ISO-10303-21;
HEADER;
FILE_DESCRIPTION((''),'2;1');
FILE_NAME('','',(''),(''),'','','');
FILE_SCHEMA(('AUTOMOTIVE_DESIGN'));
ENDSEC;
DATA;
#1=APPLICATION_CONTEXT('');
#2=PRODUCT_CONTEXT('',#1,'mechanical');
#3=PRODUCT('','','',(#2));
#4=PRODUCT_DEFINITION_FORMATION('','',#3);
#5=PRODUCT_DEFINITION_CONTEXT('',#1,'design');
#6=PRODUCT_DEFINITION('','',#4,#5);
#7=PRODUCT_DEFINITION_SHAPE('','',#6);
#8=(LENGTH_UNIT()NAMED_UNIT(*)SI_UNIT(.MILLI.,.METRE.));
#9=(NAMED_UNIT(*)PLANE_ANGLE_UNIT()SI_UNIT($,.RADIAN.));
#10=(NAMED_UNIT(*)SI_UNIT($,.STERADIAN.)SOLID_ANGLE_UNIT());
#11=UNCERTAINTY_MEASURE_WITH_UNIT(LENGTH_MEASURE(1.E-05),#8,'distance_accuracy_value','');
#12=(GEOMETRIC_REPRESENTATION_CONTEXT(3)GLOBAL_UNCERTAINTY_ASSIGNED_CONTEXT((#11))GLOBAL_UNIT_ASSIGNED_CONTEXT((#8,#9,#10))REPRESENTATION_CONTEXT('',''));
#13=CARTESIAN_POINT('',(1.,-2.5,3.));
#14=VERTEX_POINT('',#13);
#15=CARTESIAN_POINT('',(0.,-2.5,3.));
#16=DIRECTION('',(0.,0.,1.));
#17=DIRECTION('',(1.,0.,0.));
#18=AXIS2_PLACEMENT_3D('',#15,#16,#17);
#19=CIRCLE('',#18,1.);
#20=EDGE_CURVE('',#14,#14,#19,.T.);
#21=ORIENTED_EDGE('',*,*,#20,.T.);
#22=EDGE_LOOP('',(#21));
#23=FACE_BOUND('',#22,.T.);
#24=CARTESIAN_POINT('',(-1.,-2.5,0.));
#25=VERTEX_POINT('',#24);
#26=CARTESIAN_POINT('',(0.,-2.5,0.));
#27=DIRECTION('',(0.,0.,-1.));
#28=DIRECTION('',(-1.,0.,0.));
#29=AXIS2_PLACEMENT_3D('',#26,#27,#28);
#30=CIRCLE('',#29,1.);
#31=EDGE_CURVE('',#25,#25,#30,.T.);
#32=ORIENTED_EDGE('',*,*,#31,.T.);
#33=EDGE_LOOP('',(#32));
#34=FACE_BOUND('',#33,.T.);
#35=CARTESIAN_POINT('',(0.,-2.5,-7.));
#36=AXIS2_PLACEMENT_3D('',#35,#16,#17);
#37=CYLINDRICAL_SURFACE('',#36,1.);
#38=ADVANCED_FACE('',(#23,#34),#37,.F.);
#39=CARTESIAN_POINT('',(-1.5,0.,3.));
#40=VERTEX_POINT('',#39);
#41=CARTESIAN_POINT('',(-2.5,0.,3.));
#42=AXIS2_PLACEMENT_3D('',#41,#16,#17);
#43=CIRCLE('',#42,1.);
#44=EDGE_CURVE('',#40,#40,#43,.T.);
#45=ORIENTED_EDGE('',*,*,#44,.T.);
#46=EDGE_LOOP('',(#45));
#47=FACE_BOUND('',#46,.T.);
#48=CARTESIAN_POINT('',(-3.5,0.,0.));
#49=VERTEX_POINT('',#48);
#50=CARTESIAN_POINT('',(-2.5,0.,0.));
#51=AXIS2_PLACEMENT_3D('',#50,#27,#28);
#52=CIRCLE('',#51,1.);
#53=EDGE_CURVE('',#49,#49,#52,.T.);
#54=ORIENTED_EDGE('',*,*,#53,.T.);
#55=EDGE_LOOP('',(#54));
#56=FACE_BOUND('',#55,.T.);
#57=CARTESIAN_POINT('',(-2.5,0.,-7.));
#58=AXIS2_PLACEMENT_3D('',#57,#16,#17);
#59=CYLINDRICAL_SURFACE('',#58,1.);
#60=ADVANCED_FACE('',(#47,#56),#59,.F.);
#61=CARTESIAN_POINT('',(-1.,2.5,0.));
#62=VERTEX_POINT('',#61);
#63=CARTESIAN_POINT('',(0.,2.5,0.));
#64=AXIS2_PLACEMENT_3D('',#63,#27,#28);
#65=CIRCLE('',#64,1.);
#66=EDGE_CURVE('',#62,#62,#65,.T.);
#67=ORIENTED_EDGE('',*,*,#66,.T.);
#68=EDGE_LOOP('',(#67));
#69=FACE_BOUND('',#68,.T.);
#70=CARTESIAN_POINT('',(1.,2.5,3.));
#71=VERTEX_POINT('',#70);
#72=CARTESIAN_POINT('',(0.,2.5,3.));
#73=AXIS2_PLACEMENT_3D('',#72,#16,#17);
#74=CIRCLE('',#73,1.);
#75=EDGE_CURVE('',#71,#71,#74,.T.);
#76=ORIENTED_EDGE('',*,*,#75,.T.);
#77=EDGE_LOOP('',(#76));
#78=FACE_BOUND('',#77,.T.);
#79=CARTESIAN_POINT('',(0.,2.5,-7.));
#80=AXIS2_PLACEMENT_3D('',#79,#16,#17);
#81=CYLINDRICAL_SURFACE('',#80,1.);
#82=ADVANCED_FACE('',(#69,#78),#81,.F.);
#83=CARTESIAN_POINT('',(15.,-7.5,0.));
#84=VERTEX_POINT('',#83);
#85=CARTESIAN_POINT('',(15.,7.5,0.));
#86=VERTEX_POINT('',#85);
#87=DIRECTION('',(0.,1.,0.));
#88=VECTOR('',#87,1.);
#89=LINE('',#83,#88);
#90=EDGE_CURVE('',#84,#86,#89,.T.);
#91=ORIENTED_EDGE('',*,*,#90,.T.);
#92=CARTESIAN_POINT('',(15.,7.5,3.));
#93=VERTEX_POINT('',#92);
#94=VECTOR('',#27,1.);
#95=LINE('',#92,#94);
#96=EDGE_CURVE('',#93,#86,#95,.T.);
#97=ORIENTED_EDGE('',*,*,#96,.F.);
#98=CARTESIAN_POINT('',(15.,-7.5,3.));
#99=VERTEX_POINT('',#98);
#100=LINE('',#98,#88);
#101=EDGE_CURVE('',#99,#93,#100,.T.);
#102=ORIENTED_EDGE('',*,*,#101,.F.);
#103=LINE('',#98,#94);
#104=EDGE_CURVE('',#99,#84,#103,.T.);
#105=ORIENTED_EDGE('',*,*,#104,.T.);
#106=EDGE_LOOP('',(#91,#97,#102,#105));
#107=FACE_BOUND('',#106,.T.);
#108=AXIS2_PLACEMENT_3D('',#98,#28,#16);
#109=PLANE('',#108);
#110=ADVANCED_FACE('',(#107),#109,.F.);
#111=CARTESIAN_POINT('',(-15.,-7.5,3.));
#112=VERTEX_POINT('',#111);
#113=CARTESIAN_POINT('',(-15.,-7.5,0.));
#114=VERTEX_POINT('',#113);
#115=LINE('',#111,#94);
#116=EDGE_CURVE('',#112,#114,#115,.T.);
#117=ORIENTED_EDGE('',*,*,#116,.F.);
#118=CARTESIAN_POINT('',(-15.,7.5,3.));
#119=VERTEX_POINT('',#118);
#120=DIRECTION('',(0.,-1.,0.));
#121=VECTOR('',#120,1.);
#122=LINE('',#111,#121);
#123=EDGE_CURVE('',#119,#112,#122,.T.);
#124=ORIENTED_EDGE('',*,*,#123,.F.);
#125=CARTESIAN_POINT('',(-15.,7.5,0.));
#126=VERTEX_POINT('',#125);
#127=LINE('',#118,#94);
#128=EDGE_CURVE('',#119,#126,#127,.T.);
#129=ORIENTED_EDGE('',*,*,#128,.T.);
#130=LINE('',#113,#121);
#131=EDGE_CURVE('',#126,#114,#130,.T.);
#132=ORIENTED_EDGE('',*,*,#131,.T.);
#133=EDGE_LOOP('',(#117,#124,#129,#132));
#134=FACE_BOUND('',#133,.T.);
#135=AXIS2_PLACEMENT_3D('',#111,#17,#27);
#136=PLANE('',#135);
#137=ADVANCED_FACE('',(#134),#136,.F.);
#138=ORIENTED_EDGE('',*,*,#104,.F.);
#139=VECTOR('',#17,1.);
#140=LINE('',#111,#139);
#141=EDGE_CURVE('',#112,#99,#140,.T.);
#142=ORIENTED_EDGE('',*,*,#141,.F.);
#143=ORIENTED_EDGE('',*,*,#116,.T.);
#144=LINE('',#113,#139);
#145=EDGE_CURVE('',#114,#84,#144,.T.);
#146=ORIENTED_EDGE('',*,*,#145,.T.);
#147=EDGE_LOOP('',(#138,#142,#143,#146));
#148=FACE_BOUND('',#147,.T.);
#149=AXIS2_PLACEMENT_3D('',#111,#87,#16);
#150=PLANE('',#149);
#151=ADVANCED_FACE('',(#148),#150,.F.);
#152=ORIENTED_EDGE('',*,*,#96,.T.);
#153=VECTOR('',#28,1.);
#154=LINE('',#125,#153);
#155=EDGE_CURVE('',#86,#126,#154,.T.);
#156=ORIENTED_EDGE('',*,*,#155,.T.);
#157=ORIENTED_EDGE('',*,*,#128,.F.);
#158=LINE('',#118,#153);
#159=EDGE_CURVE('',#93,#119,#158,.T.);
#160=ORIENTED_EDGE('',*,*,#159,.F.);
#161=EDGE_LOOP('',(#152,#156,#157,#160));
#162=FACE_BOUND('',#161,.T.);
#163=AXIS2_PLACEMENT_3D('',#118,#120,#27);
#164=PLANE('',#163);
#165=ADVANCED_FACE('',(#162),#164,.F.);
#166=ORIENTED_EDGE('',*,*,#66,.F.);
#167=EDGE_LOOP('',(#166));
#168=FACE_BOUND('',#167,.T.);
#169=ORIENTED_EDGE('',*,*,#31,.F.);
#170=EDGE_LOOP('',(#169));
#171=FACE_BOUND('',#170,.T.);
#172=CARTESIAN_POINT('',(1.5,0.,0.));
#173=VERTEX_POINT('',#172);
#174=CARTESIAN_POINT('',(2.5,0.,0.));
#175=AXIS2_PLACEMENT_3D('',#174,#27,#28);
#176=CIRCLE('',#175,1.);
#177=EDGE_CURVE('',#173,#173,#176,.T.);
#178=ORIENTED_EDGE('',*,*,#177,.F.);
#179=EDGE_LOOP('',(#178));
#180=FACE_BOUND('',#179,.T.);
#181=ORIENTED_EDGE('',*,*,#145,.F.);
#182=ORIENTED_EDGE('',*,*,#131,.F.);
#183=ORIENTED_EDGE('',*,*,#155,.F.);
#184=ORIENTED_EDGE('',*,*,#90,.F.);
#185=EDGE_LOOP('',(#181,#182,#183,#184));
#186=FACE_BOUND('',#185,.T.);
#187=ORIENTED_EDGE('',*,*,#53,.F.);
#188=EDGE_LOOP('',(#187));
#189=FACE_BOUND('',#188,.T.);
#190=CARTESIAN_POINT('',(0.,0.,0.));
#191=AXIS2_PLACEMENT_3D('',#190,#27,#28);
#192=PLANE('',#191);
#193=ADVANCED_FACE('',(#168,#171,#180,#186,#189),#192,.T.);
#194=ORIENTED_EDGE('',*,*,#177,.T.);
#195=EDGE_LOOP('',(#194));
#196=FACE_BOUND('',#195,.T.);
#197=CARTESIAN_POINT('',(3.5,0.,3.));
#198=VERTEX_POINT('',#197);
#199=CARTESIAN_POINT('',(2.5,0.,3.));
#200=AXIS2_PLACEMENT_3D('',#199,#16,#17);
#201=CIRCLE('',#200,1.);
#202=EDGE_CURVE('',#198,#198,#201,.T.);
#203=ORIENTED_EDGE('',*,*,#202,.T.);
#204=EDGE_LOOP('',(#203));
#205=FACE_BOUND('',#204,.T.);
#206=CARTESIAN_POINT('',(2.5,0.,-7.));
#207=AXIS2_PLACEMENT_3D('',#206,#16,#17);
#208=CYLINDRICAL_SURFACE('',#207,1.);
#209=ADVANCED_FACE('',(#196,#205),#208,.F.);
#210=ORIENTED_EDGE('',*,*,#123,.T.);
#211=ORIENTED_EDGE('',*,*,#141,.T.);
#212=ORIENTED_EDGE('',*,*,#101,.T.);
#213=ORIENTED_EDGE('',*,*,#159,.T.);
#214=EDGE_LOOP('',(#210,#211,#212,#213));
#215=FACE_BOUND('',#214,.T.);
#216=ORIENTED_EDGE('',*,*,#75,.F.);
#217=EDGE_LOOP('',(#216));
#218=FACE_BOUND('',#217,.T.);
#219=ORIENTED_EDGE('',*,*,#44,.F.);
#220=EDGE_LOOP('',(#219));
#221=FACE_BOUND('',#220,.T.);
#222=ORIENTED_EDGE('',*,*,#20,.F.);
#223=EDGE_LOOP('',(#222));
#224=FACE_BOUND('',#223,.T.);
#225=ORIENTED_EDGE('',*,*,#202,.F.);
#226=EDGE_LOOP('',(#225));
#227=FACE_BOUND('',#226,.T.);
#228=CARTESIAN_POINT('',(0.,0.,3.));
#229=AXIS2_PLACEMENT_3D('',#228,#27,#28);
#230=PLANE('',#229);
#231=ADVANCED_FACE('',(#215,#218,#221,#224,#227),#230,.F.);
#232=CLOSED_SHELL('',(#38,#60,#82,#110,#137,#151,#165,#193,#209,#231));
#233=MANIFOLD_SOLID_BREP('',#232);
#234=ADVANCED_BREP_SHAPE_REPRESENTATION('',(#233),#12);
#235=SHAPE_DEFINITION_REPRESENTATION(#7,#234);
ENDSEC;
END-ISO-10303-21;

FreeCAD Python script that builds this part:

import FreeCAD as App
import Part
import Sketcher
from FreeCAD import Vector
Q = App.Units.Quantity


def add_polygon(sketch, points):
    """Adds a closed chain of lines whose ends are joined by coincident constraints."""
    first, n = sketch.GeometryCount, len(points)
    for a, b in zip(points, points[1:] + points[:1]):
        sketch.addGeometry(Part.LineSegment(App.Vector(*a, 0), App.Vector(*b, 0)), False)
    for i in range(n):
        sketch.addConstraint(Sketcher.Constraint("Coincident", first + i, 2, first + (i + 1) % n, 1))

doc = App.newDocument("Part")
params = doc.addObject("Spreadsheet::Sheet", "Params")
for row, (alias, value) in enumerate([
    ("sketch1_width", "30 mm"),
    ("sketch1_height", "15 mm"),
    ("pad1_length", "3 mm"),
    ("sketch2_diameter", "2 mm"),
    ("pocket1_length", "10 mm"),
], start=1):
    params.set(f"A{row}", alias)
    params.set(f"B{row}", "=" + value)
    params.setAlias(f"B{row}", alias)

body = doc.addObject("PartDesign::Body", "Body")

sketch1 = doc.addObject("Sketcher::SketchObject", "Sketch")
body.addObject(sketch1)
sketch1.AttachmentSupport = (doc.XY_Plane, [""])
sketch1.MapMode = "FlatFace"
add_polygon(sketch1, [(-15, 8), (-15, -8), (15, -8), (15, 8)])
sketch1.addConstraint([
    Sketcher.Constraint("Vertical", 0),
    Sketcher.Constraint("Horizontal", 1),
    Sketcher.Constraint("Vertical", 2),
    Sketcher.Constraint("Horizontal", 3),
    Sketcher.Constraint("Symmetric", 0, 2, 2, 2, -1, 1),
    Sketcher.Constraint("DistanceX", 1, 1, 1, 2, Q("30 mm")),
    Sketcher.Constraint("DistanceY", 0, 2, 0, 1, Q("15 mm")),
])
sketch1.setExpression("Constraints[9]", "Params.sketch1_width")
sketch1.setExpression("Constraints[10]", "Params.sketch1_height")
pad1 = doc.addObject("PartDesign::Pad", "Pad")
body.addObject(pad1)
pad1.Profile = sketch1
pad1.setExpression("Length", "Params.pad1_length")

sketch2 = doc.addObject("Sketcher::SketchObject", "Sketch001")
body.addObject(sketch2)
sketch2.AttachmentSupport = (doc.XY_Plane, [""])
sketch2.MapMode = "FlatFace"
sketch2.AttachmentOffset = App.Placement(Vector(0, 0, 3), App.Rotation())
sketch2.addGeometry([
    Part.Circle(Vector(0, 2.5, 0), Vector(0, 0, 1), 1),
    Part.Circle(Vector(2.5, 0, 0), Vector(0, 0, 1), 1),
    Part.Circle(Vector(0, -2.5, 0), Vector(0, 0, 1), 1),
    Part.Circle(Vector(-2.5, 0, 0), Vector(0, 0, 1), 1),
], False)
sketch2.addConstraint([
    Sketcher.Constraint("Equal", 0, 1),
    Sketcher.Constraint("Equal", 1, 2),
    Sketcher.Constraint("Equal", 2, 3),
    Sketcher.Constraint("Symmetric", 0, 3, 2, 3, -1, 1),
    Sketcher.Constraint("Symmetric", 1, 3, 3, 3, -1, 1),
    Sketcher.Constraint("PointOnObject", 0, 3, -2),
    Sketcher.Constraint("PointOnObject", 1, 3, -1),
    Sketcher.Constraint("Diameter", 0, Q("2 mm")),
    Sketcher.Constraint("DistanceY", 2, 3, 0, 3, Q("5 mm")),
    Sketcher.Constraint("DistanceX", 3, 3, 1, 3, Q("5 mm")),
])
sketch2.setExpression("Constraints[7]", "Params.sketch2_diameter")
pocket1 = doc.addObject("PartDesign::Pocket", "Pocket")
body.addObject(pocket1)
pocket1.Profile = sketch2
pocket1.setExpression("Length", "Params.pocket1_length")

doc.recompute()
